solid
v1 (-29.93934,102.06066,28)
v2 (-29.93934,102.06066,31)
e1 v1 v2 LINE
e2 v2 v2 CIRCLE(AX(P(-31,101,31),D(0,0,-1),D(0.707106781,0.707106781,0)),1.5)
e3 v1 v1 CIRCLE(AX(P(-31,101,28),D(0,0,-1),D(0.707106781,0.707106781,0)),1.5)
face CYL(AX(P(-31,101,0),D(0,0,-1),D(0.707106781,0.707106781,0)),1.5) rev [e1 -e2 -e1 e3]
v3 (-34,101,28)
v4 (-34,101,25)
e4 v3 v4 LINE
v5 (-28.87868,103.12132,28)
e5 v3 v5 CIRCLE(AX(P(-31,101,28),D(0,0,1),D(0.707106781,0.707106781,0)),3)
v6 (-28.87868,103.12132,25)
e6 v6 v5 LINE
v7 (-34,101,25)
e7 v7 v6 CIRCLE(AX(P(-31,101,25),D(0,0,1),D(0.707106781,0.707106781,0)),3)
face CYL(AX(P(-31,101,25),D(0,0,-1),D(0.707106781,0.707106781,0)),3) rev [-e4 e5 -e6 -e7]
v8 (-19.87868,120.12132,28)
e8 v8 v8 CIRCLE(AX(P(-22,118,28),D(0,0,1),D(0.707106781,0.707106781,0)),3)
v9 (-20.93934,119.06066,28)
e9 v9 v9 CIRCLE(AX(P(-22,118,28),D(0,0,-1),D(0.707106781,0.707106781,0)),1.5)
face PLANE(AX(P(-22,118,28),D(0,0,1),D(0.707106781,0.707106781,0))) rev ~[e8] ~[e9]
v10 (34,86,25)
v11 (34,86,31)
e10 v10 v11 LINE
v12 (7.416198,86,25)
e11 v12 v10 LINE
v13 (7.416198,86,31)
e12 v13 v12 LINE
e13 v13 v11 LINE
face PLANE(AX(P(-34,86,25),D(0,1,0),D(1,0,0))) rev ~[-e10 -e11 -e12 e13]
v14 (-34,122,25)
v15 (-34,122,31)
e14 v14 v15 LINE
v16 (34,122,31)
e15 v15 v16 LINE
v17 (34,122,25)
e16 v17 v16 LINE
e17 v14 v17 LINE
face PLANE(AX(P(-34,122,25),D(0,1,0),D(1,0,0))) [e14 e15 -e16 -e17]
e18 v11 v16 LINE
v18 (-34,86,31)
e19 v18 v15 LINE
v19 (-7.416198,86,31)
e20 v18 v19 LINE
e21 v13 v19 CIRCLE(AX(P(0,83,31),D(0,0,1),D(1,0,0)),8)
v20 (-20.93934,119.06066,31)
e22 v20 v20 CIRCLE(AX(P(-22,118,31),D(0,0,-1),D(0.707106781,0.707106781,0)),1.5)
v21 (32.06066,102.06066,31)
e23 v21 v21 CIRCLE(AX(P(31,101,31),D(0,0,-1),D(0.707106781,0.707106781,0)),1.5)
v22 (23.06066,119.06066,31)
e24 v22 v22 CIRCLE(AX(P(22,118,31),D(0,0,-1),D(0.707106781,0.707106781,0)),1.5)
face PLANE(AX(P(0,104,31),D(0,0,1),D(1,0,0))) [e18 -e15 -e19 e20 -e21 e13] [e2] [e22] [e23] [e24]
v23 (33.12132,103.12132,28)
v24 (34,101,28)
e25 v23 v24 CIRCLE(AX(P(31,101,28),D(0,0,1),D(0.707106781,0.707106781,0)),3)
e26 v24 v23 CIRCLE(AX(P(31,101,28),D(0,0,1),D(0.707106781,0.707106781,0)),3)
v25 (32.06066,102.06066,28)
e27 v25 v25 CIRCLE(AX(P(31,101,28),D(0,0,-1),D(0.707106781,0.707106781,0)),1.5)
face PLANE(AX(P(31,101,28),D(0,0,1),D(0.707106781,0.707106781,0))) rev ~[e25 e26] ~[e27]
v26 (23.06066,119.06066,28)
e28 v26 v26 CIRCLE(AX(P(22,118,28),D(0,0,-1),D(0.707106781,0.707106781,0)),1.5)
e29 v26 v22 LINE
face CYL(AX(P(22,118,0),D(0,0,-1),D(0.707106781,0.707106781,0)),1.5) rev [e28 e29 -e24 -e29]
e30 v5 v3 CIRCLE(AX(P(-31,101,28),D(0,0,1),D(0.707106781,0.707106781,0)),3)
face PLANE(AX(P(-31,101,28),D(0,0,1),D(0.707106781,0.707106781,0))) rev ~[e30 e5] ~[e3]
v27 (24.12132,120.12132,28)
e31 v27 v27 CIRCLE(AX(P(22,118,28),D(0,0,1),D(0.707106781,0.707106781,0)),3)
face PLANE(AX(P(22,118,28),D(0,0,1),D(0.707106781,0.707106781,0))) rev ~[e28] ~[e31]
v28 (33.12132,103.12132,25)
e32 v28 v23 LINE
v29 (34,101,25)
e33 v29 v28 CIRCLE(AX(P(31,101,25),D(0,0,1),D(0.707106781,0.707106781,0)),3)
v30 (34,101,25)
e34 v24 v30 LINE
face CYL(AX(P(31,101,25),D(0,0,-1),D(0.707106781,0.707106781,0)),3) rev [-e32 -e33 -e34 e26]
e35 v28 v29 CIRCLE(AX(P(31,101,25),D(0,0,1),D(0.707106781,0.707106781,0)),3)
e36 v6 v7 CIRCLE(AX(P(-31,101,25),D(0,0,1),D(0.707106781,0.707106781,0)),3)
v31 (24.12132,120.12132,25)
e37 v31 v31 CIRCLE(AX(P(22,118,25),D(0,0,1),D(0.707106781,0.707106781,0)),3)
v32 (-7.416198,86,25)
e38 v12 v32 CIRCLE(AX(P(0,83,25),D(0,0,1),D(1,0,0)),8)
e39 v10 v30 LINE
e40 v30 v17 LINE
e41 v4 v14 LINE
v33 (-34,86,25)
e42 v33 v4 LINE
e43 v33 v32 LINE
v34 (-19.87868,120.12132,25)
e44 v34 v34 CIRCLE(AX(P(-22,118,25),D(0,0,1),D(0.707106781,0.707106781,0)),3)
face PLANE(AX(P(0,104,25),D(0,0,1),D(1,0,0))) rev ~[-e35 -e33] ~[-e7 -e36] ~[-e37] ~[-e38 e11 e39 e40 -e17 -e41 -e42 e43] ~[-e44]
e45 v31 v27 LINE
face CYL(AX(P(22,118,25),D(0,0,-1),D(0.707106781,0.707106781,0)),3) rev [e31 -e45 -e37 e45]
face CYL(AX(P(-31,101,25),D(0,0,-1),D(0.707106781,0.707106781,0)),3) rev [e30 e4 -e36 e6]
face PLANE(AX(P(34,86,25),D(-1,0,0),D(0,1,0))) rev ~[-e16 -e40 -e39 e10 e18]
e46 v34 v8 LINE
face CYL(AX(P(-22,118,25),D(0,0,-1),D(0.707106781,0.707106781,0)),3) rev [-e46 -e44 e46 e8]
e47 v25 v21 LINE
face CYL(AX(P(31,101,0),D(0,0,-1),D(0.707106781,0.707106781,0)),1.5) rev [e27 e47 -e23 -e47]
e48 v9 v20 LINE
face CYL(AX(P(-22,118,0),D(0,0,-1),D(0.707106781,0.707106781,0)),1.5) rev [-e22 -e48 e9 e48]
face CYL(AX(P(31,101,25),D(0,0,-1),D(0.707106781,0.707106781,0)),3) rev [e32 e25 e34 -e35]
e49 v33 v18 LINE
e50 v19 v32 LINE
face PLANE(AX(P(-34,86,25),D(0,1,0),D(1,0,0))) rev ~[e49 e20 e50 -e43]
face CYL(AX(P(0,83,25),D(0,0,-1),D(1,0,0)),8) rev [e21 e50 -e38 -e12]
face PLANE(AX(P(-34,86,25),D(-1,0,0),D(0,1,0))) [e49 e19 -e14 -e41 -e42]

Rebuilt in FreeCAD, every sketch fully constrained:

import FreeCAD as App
import Part
import Sketcher

V = App.Vector
Q = App.Units.Quantity


def add_polygon(sketch, points):
    """Adds a closed chain of lines whose ends are joined by coincident constraints."""
    first, n = sketch.GeometryCount, len(points)
    for a, b in zip(points, points[1:] + points[:1]):
        sketch.addGeometry(Part.LineSegment(App.Vector(*a, 0), App.Vector(*b, 0)), False)
    for i in range(n):
        sketch.addConstraint(Sketcher.Constraint("Coincident", first + i, 2, first + (i + 1) % n, 1))

doc = App.newDocument("Part")
body = doc.addObject("PartDesign::Body", "Body")

# Sketch on XY plane
sketch1 = body.newObject("Sketcher::SketchObject", "Sketch")
sketch1.AttachmentSupport = (doc.getObject("XY_Plane"), [""])
sketch1.MapMode = "FlatFace"
sketch1.addGeometry(Part.Circle(V(0, 0, 0), V(0, 0, 1), 3), False)
sketch1.addConstraint(Sketcher.Constraint("Coincident", 0, 3, -1, 1))
sketch1.addConstraint(Sketcher.Constraint("Diameter", 0, Q("6 mm")))
pad1 = body.newObject("PartDesign::Pad", "Pad")
pad1.Profile = sketch1
pad1.Length = 3
body2 = doc.addObject("PartDesign::Body", "Body001")
doc.recompute()

body.Placement = App.Placement(V(22, 118, 0), App.Rotation(V(0, 0, 1), 45))
boolean = body2.newObject("PartDesign::Boolean", "Boolean")
boolean.Type = "Fuse"
boolean.addObjects([body])
body3 = doc.addObject("PartDesign::Body", "Body002")

# Sketch on XY plane
sketch2 = body3.newObject("Sketcher::SketchObject", "Sketch001")
sketch2.AttachmentSupport = (doc.getObject("XY_Plane002"), [""])
sketch2.MapMode = "FlatFace"
sketch2.addGeometry(Part.Circle(V(0, 0, 0), V(0, 0, 1), 3), False)
sketch2.addConstraint(Sketcher.Constraint("Coincident", 0, 3, -1, 1))
sketch2.addConstraint(Sketcher.Constraint("Diameter", 0, Q("6 mm")))
pad2 = body3.newObject("PartDesign::Pad", "Pad001")
pad2.Profile = sketch2
pad2.Length = 3
body4 = doc.addObject("PartDesign::Body", "Body003")
body4.AllowCompound = True
doc.recompute()

body3.Placement = App.Placement(V(-22, 118, 0), App.Rotation(V(0, 0, 1), 45))
boolean2 = body4.newObject("PartDesign::Boolean", "Boolean001")
boolean2.Type = "Fuse"
boolean2.addObjects([body3])
doc.recompute()

boolean3 = body4.newObject("PartDesign::Boolean", "Boolean002")
boolean3.Type = "Fuse"
boolean3.addObjects([body2])
body5 = doc.addObject("PartDesign::Body", "Body004")
body5.AllowCompound = True
doc.recompute()

body4.Placement = App.Placement(V(0, 0, 25), App.Rotation(V(0, 0, 1), 0))
boolean4 = body5.newObject("PartDesign::Boolean", "Boolean003")
boolean4.Type = "Fuse"
boolean4.addObjects([body4])
body6 = doc.addObject("PartDesign::Body", "Body005")

# Sketch on XY plane
sketch3 = body6.newObject("Sketcher::SketchObject", "Sketch002")
sketch3.AttachmentSupport = (doc.getObject("XY_Plane005"), [""])
sketch3.MapMode = "FlatFace"
sketch3.addGeometry(Part.Circle(V(0, 0, 0), V(0, 0, 1), 3), False)
sketch3.addConstraint(Sketcher.Constraint("Coincident", 0, 3, -1, 1))
sketch3.addConstraint(Sketcher.Constraint("Diameter", 0, Q("6 mm")))
pad3 = body6.newObject("PartDesign::Pad", "Pad002")
pad3.Profile = sketch3
pad3.Length = 3
body7 = doc.addObject("PartDesign::Body", "Body006")
doc.recompute()

body6.Placement = App.Placement(V(31, 101, 0), App.Rotation(V(0, 0, 1), 45))
boolean5 = body7.newObject("PartDesign::Boolean", "Boolean004")
boolean5.Type = "Fuse"
boolean5.addObjects([body6])
body8 = doc.addObject("PartDesign::Body", "Body007")

# Sketch on XY plane
sketch4 = body8.newObject("Sketcher::SketchObject", "Sketch003")
sketch4.AttachmentSupport = (doc.getObject("XY_Plane007"), [""])
sketch4.MapMode = "FlatFace"
sketch4.addGeometry(Part.Circle(V(0, 0, 0), V(0, 0, 1), 3), False)
sketch4.addConstraint(Sketcher.Constraint("Coincident", 0, 3, -1, 1))
sketch4.addConstraint(Sketcher.Constraint("Diameter", 0, Q("6 mm")))
pad4 = body8.newObject("PartDesign::Pad", "Pad003")
pad4.Profile = sketch4
pad4.Length = 3
body9 = doc.addObject("PartDesign::Body", "Body008")
body9.AllowCompound = True
doc.recompute()

body8.Placement = App.Placement(V(-31, 101, 0), App.Rotation(V(0, 0, 1), 45))
boolean6 = body9.newObject("PartDesign::Boolean", "Boolean005")
boolean6.Type = "Fuse"
boolean6.addObjects([body8])
doc.recompute()

boolean7 = body9.newObject("PartDesign::Boolean", "Boolean006")
boolean7.Type = "Fuse"
boolean7.addObjects([body7])
body10 = doc.addObject("PartDesign::Body", "Body009")
body10.AllowCompound = True
doc.recompute()

body9.Placement = App.Placement(V(0, 0, 25), App.Rotation(V(0, 0, 1), 0))
boolean8 = body10.newObject("PartDesign::Boolean", "Boolean007")
boolean8.Type = "Fuse"
boolean8.addObjects([body9])
body11 = doc.addObject("PartDesign::Body", "Body010")

# Sketch on XY plane
sketch5 = body11.newObject("Sketcher::SketchObject", "Sketch004")
sketch5.AttachmentSupport = (doc.getObject("XY_Plane010"), [""])
sketch5.MapMode = "FlatFace"
sketch5.addGeometry(Part.Circle(V(0, 0, 0), V(0, 0, 1), 1.5), False)
sketch5.addConstraint(Sketcher.Constraint("Coincident", 0, 3, -1, 1))
sketch5.addConstraint(Sketcher.Constraint("Diameter", 0, Q("3 mm")))
pad5 = body11.newObject("PartDesign::Pad", "Pad004")
pad5.Profile = sketch5
pad5.Length = 50
body12 = doc.addObject("PartDesign::Body", "Body011")
doc.recompute()

body11.Placement = App.Placement(V(22, 118, 0), App.Rotation(V(0, 0, 1), 45))
boolean9 = body12.newObject("PartDesign::Boolean", "Boolean008")
boolean9.Type = "Fuse"
boolean9.addObjects([body11])
body13 = doc.addObject("PartDesign::Body", "Body012")

# Sketch on XY plane
sketch6 = body13.newObject("Sketcher::SketchObject", "Sketch005")
sketch6.AttachmentSupport = (doc.getObject("XY_Plane012"), [""])
sketch6.MapMode = "FlatFace"
sketch6.addGeometry(Part.Circle(V(0, 0, 0), V(0, 0, 1), 1.5), False)
sketch6.addConstraint(Sketcher.Constraint("Coincident", 0, 3, -1, 1))
sketch6.addConstraint(Sketcher.Constraint("Diameter", 0, Q("3 mm")))
pad6 = body13.newObject("PartDesign::Pad", "Pad005")
pad6.Profile = sketch6
pad6.Length = 50
body14 = doc.addObject("PartDesign::Body", "Body013")
body14.AllowCompound = True
doc.recompute()

body13.Placement = App.Placement(V(-22, 118, 0), App.Rotation(V(0, 0, 1), 45))
boolean10 = body14.newObject("PartDesign::Boolean", "Boolean009")
boolean10.Type = "Fuse"
boolean10.addObjects([body13])
doc.recompute()

boolean11 = body14.newObject("PartDesign::Boolean", "Boolean010")
boolean11.Type = "Fuse"
boolean11.addObjects([body12])
body15 = doc.addObject("PartDesign::Body", "Body014")

# Sketch on XY plane
sketch7 = body15.newObject("Sketcher::SketchObject", "Sketch006")
sketch7.AttachmentSupport = (doc.getObject("XY_Plane014"), [""])
sketch7.MapMode = "FlatFace"
sketch7.AttachmentOffset = App.Placement(V(0, 0, 25), App.Rotation())
sketch7.addGeometry(Part.Circle(V(0, 83, 0), V(0, 0, 1), 8), False)
sketch7.addConstraint(Sketcher.Constraint("PointOnObject", 0, 3, -2))
sketch7.addConstraint(Sketcher.Constraint("Diameter", 0, Q("16 mm")))
sketch7.addConstraint(Sketcher.Constraint("DistanceY", -1, 1, 0, 3, Q("83 mm")))
pad7 = body15.newObject("PartDesign::Pad", "Pad006")
pad7.Profile = sketch7
pad7.Length = 6
body16 = doc.addObject("PartDesign::Body", "Body015")

# Sketch on XY plane
sketch8 = body16.newObject("Sketcher::SketchObject", "Sketch007")
sketch8.AttachmentSupport = (doc.getObject("XY_Plane015"), [""])
sketch8.MapMode = "FlatFace"
sketch8.addGeometry(Part.Circle(V(0, 0, 0), V(0, 0, 1), 1.5), False)
sketch8.addConstraint(Sketcher.Constraint("Coincident", 0, 3, -1, 1))
sketch8.addConstraint(Sketcher.Constraint("Diameter", 0, Q("3 mm")))
pad8 = body16.newObject("PartDesign::Pad", "Pad007")
pad8.Profile = sketch8
pad8.Length = 50
body17 = doc.addObject("PartDesign::Body", "Body016")
doc.recompute()

body16.Placement = App.Placement(V(31, 101, 0), App.Rotation(V(0, 0, 1), 45))
boolean12 = body17.newObject("PartDesign::Boolean", "Boolean011")
boolean12.Type = "Fuse"
boolean12.addObjects([body16])
body18 = doc.addObject("PartDesign::Body", "Body017")

# Sketch on XY plane
sketch9 = body18.newObject("Sketcher::SketchObject", "Sketch008")
sketch9.AttachmentSupport = (doc.getObject("XY_Plane017"), [""])
sketch9.MapMode = "FlatFace"
sketch9.addGeometry(Part.Circle(V(0, 0, 0), V(0, 0, 1), 1.5), False)
sketch9.addConstraint(Sketcher.Constraint("Coincident", 0, 3, -1, 1))
sketch9.addConstraint(Sketcher.Constraint("Diameter", 0, Q("3 mm")))
pad9 = body18.newObject("PartDesign::Pad", "Pad008")
pad9.Profile = sketch9
pad9.Length = 50
body19 = doc.addObject("PartDesign::Body", "Body018")
body19.AllowCompound = True
doc.recompute()

body18.Placement = App.Placement(V(-31, 101, 0), App.Rotation(V(0, 0, 1), 45))
boolean13 = body19.newObject("PartDesign::Boolean", "Boolean012")
boolean13.Type = "Fuse"
boolean13.addObjects([body18])
doc.recompute()

boolean14 = body19.newObject("PartDesign::Boolean", "Boolean013")
boolean14.Type = "Fuse"
boolean14.addObjects([body17])
body20 = doc.addObject("PartDesign::Body", "Body019")

# Sketch on XY plane
sketch10 = body20.newObject("Sketcher::SketchObject", "Sketch009")
sketch10.AttachmentSupport = (doc.getObject("XY_Plane019"), [""])
sketch10.MapMode = "FlatFace"
sketch10.AttachmentOffset = App.Placement(V(0, 0, 25), App.Rotation())
add_polygon(sketch10, [(-34, 122), (-34, 86), (34, 86), (34, 122)])  # lines 0-3
sketch10.addConstraint(Sketcher.Constraint("Vertical", 0))
sketch10.addConstraint(Sketcher.Constraint("Horizontal", 1))
sketch10.addConstraint(Sketcher.Constraint("Vertical", 2))
sketch10.addConstraint(Sketcher.Constraint("Horizontal", 3))
sketch10.addConstraint(Sketcher.Constraint("DistanceX", 1, 1, 1, 2, Q("68 mm")))
sketch10.addConstraint(Sketcher.Constraint("DistanceY", 0, 2, 0, 1, Q("36 mm")))
sketch10.addConstraint(Sketcher.Constraint("DistanceX", 0, 2, -1, 1, Q("34 mm")))
sketch10.addConstraint(Sketcher.Constraint("DistanceY", -1, 1, 0, 2, Q("86 mm")))
pad10 = body20.newObject("PartDesign::Pad", "Pad009")
pad10.Profile = sketch10
pad10.Length = 6
doc.recompute()

boolean15 = body20.newObject("PartDesign::Boolean", "Boolean014")
boolean15.Type = "Cut"
boolean15.addObjects([body19])
doc.recompute()

boolean16 = body20.newObject("PartDesign::Boolean", "Boolean015")
boolean16.Type = "Cut"
boolean16.addObjects([body15])
doc.recompute()

boolean17 = body20.newObject("PartDesign::Boolean", "Boolean016")
boolean17.Type = "Cut"
boolean17.addObjects([body14])
doc.recompute()

boolean18 = body20.newObject("PartDesign::Boolean", "Boolean017")
boolean18.Type = "Cut"
boolean18.addObjects([body10])
doc.recompute()

boolean19 = body20.newObject("PartDesign::Boolean", "Boolean018")
boolean19.Type = "Cut"
boolean19.addObjects([body5])

doc.recompute()
